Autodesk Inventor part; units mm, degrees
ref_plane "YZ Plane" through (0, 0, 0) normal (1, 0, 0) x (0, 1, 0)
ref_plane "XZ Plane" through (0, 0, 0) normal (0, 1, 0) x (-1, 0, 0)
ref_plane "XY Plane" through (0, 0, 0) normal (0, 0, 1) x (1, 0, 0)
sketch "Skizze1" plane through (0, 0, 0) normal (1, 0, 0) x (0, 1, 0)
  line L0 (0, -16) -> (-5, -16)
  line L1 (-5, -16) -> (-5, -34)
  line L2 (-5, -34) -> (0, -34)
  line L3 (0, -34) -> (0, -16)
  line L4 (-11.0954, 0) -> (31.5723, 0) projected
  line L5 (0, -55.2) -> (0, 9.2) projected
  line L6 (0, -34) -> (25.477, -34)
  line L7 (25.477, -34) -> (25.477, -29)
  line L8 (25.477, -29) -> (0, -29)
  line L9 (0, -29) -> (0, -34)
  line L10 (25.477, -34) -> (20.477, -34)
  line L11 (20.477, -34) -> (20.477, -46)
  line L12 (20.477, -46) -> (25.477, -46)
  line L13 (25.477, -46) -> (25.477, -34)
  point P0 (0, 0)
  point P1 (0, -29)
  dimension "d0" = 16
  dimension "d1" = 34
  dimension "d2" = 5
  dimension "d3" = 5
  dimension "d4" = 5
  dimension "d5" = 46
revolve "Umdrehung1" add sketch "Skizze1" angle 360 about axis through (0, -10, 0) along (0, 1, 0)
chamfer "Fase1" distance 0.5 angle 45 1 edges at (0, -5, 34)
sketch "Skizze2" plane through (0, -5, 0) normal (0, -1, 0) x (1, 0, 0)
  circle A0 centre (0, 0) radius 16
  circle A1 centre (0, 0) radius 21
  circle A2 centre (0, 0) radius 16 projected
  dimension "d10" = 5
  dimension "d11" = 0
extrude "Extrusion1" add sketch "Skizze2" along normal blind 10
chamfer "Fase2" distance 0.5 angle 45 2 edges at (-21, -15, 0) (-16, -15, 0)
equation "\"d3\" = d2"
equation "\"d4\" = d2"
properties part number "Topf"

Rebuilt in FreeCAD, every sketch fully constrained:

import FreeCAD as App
import Part
import Sketcher
from FreeCAD import Vector


def edges_at(feature, points):
    """Names of the edges that pass closest to the given points."""
    edges = feature.Shape.Edges
    near = lambda p: min(range(len(edges)), key=lambda i: edges[i].distToShape(Part.Vertex(*p))[0])
    return sorted({f"Edge{near(p) + 1}" for p in points})

doc = App.newDocument("Part")
body = doc.addObject("PartDesign::Body", "Body")

sketch1 = body.newObject("Sketcher::SketchObject", "Sketch")
sketch1.AttachmentSupport = (doc.getObject("YZ_Plane"), [""])
sketch1.MapMode = "FlatFace"
sketch1.addGeometry(Part.LineSegment(Vector(0, -29, 0), Vector(0, -16, 0)), False)
sketch1.addGeometry(Part.LineSegment(Vector(0, -16, 0), Vector(-5, -16, 0)), False)
sketch1.addGeometry(Part.LineSegment(Vector(-5, -16, 0), Vector(-5, -34, 0)), False)
sketch1.addGeometry(Part.LineSegment(Vector(-5, -34, 0), Vector(20, -34, 0)), False)
sketch1.addGeometry(Part.LineSegment(Vector(20, -34, 0), Vector(20, -46, 0)), False)
sketch1.addGeometry(Part.LineSegment(Vector(20, -46, 0), Vector(25, -46, 0)), False)
sketch1.addGeometry(Part.LineSegment(Vector(25, -46, 0), Vector(25, -29, 0)), False)
sketch1.addGeometry(Part.LineSegment(Vector(25, -29, 0), Vector(0, -29, 0)), False)
sketch1.addConstraint(Sketcher.Constraint("Coincident", 0, 2, 1, 1))
sketch1.addConstraint(Sketcher.Constraint("Coincident", 1, 2, 2, 1))
sketch1.addConstraint(Sketcher.Constraint("Coincident", 2, 2, 3, 1))
sketch1.addConstraint(Sketcher.Constraint("Coincident", 3, 2, 4, 1))
sketch1.addConstraint(Sketcher.Constraint("Coincident", 4, 2, 5, 1))
sketch1.addConstraint(Sketcher.Constraint("Coincident", 5, 2, 6, 1))
sketch1.addConstraint(Sketcher.Constraint("Coincident", 6, 2, 7, 1))
sketch1.addConstraint(Sketcher.Constraint("Coincident", 7, 2, 0, 1))
sketch1.addConstraint(Sketcher.Constraint("Vertical", 0))
sketch1.addConstraint(Sketcher.Constraint("Horizontal", 1))
sketch1.addConstraint(Sketcher.Constraint("Vertical", 2))
sketch1.addConstraint(Sketcher.Constraint("Horizontal", 3))
sketch1.addConstraint(Sketcher.Constraint("Vertical", 4))
sketch1.addConstraint(Sketcher.Constraint("Horizontal", 5))
sketch1.addConstraint(Sketcher.Constraint("Vertical", 6))
sketch1.addConstraint(Sketcher.Constraint("Horizontal", 7))
sketch1.addConstraint(Sketcher.Constraint("PointOnObject", 0, 2, -2))
sketch1.addConstraint(Sketcher.Constraint("Equal", 1, 5))
sketch1.addConstraint(Sketcher.Constraint("DistanceX", 1, 2, 1, 1, 5.0))
sketch1.addConstraint(Sketcher.Constraint("DistanceY", 0, 2, -1, 1, 16.0))
sketch1.addConstraint(Sketcher.Constraint("DistanceY", 2, 2, -1, 1, 34.0))
sketch1.addConstraint(Sketcher.Constraint("DistanceY", 4, 2, -1, 1, 46.0))
sketch1.addConstraint(Sketcher.Constraint("DistanceY", 3, 2, 6, 2, 5.0))
sketch1.addConstraint(Sketcher.Constraint("DistanceX", 3, 1, 3, 2, 25.477))
revolution = body.newObject("PartDesign::Revolution", "Revolution")
revolution.Profile = sketch1
revolution.ReferenceAxis = (sketch1, ["H_Axis"])
revolution.Angle = 360
doc.recompute()

chamfer = body.newObject("PartDesign::Chamfer", "Chamfer")
chamfer.Base = (revolution, edges_at(revolution, [(0, -5, 34)]))
chamfer.Size = 0.5

sketch2 = body.newObject("Sketcher::SketchObject", "Sketch001")
sketch2.AttachmentSupport = (doc.getObject("XZ_Plane"), [""])
sketch2.MapMode = "FlatFace"
sketch2.AttachmentOffset = App.Placement(Vector(0, 0, 5), App.Rotation())
sketch2.addGeometry(Part.Circle(Vector(0, 0, 0), Vector(0, 0, 1), 21), False)
sketch2.addGeometry(Part.Circle(Vector(0, 0, 0), Vector(0, 0, 1), 16), False)
sketch2.addConstraint(Sketcher.Constraint("Coincident", 0, 3, -1, 1))
sketch2.addConstraint(Sketcher.Constraint("Coincident", 1, 3, -1, 1))
sketch2.addConstraint(Sketcher.Constraint("Diameter", 0, 42.0))
sketch2.addConstraint(Sketcher.Constraint("Diameter", 1, 32.0))
pad1 = body.newObject("PartDesign::Pad", "Pad")
pad1.Profile = sketch2
pad1.Length = 10
doc.recompute()

chamfer2 = body.newObject("PartDesign::Chamfer", "Chamfer001")
chamfer2.Base = (pad1, edges_at(pad1, [(-21, -15, 0), (-16, -15, 0)]))
chamfer2.Size = 0.5

doc.recompute()
